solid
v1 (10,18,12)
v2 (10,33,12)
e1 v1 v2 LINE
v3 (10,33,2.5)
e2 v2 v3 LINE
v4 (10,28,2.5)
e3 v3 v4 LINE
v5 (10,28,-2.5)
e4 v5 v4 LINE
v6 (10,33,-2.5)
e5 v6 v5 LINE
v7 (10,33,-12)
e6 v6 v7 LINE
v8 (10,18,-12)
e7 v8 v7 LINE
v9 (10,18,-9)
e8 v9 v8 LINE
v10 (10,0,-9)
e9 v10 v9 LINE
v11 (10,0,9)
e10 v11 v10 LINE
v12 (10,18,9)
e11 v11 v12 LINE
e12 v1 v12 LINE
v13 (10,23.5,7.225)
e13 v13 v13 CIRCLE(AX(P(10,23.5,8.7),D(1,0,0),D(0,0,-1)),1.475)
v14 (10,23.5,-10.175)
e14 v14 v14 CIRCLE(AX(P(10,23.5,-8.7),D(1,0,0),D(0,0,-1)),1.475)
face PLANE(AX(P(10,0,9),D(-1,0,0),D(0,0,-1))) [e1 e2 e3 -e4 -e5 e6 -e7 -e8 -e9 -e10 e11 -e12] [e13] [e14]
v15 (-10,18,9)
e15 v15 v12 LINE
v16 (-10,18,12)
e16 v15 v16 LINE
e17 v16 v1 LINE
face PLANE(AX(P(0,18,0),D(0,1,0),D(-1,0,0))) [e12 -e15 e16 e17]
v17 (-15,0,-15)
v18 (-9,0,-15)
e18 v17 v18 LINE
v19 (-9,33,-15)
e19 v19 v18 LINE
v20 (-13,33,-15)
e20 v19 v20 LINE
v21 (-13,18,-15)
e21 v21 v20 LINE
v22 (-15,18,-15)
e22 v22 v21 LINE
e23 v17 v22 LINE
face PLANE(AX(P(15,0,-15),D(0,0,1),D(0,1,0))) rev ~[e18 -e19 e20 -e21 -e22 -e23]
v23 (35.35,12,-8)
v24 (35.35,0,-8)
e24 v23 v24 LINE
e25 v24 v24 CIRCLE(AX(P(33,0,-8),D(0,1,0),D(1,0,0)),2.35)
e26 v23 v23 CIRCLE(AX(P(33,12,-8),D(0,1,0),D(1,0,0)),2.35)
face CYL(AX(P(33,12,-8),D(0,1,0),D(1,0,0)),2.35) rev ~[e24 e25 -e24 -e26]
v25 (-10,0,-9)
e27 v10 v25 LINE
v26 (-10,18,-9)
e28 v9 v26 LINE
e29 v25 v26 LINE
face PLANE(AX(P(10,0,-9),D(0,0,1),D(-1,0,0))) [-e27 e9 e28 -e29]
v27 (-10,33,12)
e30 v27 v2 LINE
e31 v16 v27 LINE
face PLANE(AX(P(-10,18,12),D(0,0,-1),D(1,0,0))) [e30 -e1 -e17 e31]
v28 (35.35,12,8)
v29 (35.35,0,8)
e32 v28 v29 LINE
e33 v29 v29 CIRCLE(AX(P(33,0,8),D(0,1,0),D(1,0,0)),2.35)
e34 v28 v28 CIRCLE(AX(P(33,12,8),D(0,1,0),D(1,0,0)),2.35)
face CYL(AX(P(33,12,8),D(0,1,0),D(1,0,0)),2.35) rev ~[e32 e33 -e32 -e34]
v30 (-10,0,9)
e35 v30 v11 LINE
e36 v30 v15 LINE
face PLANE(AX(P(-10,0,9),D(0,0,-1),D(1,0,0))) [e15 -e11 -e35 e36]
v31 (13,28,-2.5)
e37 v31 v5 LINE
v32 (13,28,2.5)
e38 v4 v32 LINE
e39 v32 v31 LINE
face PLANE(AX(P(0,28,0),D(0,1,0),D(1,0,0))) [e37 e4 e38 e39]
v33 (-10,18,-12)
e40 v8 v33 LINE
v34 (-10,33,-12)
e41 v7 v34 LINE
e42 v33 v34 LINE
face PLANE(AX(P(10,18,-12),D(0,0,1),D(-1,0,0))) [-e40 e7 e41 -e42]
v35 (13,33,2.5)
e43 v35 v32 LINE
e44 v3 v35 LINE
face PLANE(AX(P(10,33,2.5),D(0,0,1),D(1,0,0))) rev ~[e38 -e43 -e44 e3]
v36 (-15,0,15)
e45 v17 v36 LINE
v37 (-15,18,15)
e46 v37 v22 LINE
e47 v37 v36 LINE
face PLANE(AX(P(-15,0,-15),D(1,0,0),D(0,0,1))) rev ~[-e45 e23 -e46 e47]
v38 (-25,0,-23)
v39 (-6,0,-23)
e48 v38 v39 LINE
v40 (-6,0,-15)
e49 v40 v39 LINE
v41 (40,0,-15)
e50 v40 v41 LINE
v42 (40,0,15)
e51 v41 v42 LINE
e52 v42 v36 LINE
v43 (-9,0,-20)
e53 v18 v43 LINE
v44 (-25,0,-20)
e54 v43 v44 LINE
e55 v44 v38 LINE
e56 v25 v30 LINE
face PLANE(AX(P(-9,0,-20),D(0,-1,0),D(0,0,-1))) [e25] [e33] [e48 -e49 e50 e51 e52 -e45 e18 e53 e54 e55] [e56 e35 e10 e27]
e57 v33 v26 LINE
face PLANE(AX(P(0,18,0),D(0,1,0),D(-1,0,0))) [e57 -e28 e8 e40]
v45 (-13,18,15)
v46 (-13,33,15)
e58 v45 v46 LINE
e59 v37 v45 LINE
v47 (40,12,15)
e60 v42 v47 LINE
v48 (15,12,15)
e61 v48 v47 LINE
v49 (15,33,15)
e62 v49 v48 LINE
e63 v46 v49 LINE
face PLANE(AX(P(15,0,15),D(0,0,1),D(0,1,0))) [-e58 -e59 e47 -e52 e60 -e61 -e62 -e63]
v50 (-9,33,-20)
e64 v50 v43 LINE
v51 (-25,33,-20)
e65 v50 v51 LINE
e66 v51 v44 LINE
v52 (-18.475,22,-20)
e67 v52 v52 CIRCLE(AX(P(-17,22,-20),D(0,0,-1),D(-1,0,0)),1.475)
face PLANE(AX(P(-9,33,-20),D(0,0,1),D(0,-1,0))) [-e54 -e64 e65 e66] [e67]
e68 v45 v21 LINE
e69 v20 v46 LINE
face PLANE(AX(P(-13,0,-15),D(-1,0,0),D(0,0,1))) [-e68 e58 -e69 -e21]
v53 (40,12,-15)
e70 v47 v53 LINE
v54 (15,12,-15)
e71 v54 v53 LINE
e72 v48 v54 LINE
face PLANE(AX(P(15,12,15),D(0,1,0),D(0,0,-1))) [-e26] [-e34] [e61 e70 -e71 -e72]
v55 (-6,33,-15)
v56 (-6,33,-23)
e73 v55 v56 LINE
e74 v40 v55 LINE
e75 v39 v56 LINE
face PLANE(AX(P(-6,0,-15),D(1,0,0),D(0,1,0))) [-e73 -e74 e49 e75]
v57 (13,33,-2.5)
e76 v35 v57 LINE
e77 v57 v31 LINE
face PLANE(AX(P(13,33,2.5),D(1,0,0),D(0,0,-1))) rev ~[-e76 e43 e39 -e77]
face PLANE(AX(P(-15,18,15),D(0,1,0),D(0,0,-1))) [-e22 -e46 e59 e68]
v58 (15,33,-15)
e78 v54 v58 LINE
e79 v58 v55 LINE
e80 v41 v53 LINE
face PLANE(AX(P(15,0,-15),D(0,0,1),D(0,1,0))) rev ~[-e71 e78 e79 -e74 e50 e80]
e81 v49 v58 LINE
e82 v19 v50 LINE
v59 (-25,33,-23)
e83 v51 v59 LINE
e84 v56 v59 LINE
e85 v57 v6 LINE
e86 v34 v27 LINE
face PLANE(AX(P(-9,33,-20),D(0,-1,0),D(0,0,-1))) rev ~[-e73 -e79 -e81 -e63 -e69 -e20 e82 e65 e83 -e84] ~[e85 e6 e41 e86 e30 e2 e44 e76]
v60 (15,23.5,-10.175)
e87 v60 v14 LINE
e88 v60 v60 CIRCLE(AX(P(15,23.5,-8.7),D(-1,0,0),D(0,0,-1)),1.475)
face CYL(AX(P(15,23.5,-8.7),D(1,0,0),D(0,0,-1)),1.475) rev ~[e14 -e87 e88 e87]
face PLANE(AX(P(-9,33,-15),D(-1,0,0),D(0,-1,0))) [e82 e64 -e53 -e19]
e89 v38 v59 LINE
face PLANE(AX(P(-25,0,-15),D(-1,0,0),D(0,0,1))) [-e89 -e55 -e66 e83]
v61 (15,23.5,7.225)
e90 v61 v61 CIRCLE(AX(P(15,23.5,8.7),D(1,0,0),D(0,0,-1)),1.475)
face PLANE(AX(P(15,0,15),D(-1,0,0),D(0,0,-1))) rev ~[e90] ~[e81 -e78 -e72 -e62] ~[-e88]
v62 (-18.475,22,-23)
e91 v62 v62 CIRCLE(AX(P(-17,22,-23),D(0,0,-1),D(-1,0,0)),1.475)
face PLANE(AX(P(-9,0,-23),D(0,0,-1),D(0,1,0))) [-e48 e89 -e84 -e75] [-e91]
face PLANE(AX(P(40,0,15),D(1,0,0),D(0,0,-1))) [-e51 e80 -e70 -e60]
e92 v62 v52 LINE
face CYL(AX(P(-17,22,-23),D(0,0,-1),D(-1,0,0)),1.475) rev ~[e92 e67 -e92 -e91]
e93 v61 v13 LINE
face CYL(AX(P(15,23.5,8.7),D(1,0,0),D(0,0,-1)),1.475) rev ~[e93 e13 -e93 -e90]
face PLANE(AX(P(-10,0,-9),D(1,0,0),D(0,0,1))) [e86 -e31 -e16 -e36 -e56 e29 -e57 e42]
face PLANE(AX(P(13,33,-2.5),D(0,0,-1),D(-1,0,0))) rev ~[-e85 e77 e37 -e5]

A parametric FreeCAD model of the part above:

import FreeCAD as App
import Part
import Sketcher
from FreeCAD import Vector

doc = App.newDocument("Part")
body = doc.addObject("PartDesign::Body", "Body")

# Sketch on XZ plane
sketch1 = doc.addObject("Sketcher::SketchObject", "Sketch")
body.addObject(sketch1)
sketch1.AttachmentSupport = (doc.XZ_Plane, [""])
sketch1.MapMode = "FlatFace"
sketch1.addGeometry([
    Part.LineSegment(Vector(15, 15, 0), Vector(15, -15, 0)),  # 0
    Part.LineSegment(Vector(15, -15, 0), Vector(-15, -15, 0)),  # 1
    Part.LineSegment(Vector(-15, -15, 0), Vector(-15, 15, 0)),  # 2
    Part.LineSegment(Vector(-15, 15, 0), Vector(15, 15, 0)),  # 3
    Part.LineSegment(Vector(-10, -9, 0), Vector(10, -9, 0)),  # 4
    Part.LineSegment(Vector(10, -9, 0), Vector(10, 9, 0)),  # 5
    Part.LineSegment(Vector(10, 9, 0), Vector(-10, 9, 0)),  # 6
    Part.LineSegment(Vector(-10, 9, 0), Vector(-10, -9, 0)),  # 7
], False)
sketch1.addConstraint([
    Sketcher.Constraint("Coincident", 0, 2, 1, 1),
    Sketcher.Constraint("Coincident", 1, 2, 2, 1),
    Sketcher.Constraint("Coincident", 2, 2, 3, 1),
    Sketcher.Constraint("Coincident", 3, 2, 0, 1),
    Sketcher.Constraint("Coincident", 4, 2, 5, 1),
    Sketcher.Constraint("Coincident", 5, 2, 6, 1),
    Sketcher.Constraint("Coincident", 6, 2, 7, 1),
    Sketcher.Constraint("Coincident", 7, 2, 4, 1),
    Sketcher.Constraint("Vertical", 0),
    Sketcher.Constraint("Horizontal", 1),
    Sketcher.Constraint("Vertical", 2),
    Sketcher.Constraint("Horizontal", 3),
    Sketcher.Constraint("Horizontal", 4),
    Sketcher.Constraint("Vertical", 5),
    Sketcher.Constraint("Horizontal", 6),
    Sketcher.Constraint("Vertical", 7),
    Sketcher.Constraint("Symmetric", 0, 2, 2, 2, -1, 1),
    Sketcher.Constraint("Symmetric", 4, 2, 6, 2, -1, 1),
    Sketcher.Constraint("Equal", 3, 0),
    Sketcher.Constraint("DistanceX", 1, 2, 1, 1, 30.0),
    Sketcher.Constraint("DistanceX", 4, 1, 4, 2, 20.0),
    Sketcher.Constraint("DistanceY", 5, 1, 5, 2, 18.0),
])
pad1 = doc.addObject("PartDesign::Pad", "Pad")
body.addObject(pad1)
pad1.Profile = sketch1
pad1.Length = 18
pad1.Reversed = True

# Sketch on XZ plane
sketch2 = doc.addObject("Sketcher::SketchObject", "Sketch001")
body.addObject(sketch2)
sketch2.AttachmentSupport = (doc.XZ_Plane, [""])
sketch2.MapMode = "FlatFace"
sketch2.AttachmentOffset = App.Placement(Vector(0, 0, -18), App.Rotation())
sketch2.addGeometry([
    Part.LineSegment(Vector(15, -15, 0), Vector(-15, -15, 0)),  # 0
    Part.LineSegment(Vector(-15, -15, 0), Vector(-15, 15, 0)),  # 1
    Part.LineSegment(Vector(-15, 15, 0), Vector(15, 15, 0)),  # 2
    Part.LineSegment(Vector(15, 15, 0), Vector(15, -15, 0)),  # 3
    Part.LineSegment(Vector(-10, -12, 0), Vector(10, -12, 0)),  # 4
    Part.LineSegment(Vector(10, -12, 0), Vector(10, 12, 0)),  # 5
    Part.LineSegment(Vector(10, 12, 0), Vector(-10, 12, 0)),  # 6
    Part.LineSegment(Vector(-10, 12, 0), Vector(-10, -12, 0)),  # 7
], False)
sketch2.addConstraint([
    Sketcher.Constraint("Coincident", 0, 2, 1, 1),
    Sketcher.Constraint("Coincident", 1, 2, 2, 1),
    Sketcher.Constraint("Coincident", 2, 2, 3, 1),
    Sketcher.Constraint("Coincident", 3, 2, 0, 1),
    Sketcher.Constraint("Coincident", 4, 2, 5, 1),
    Sketcher.Constraint("Coincident", 5, 2, 6, 1),
    Sketcher.Constraint("Coincident", 6, 2, 7, 1),
    Sketcher.Constraint("Coincident", 7, 2, 4, 1),
    Sketcher.Constraint("Horizontal", 0),
    Sketcher.Constraint("Vertical", 1),
    Sketcher.Constraint("Horizontal", 2),
    Sketcher.Constraint("Vertical", 3),
    Sketcher.Constraint("Horizontal", 4),
    Sketcher.Constraint("Vertical", 5),
    Sketcher.Constraint("Horizontal", 6),
    Sketcher.Constraint("Vertical", 7),
    Sketcher.Constraint("Symmetric", 0, 2, 2, 2, -1, 1),
    Sketcher.Constraint("Symmetric", 4, 2, 6, 2, -1, 1),
    Sketcher.Constraint("Equal", 2, 1),
    Sketcher.Constraint("DistanceX", 4, 1, 4, 2, 20.0),
    Sketcher.Constraint("DistanceY", 5, 1, 5, 2, 24.0),
    Sketcher.Constraint("DistanceX", 0, 2, 0, 1, 30.0),
])
pad2 = doc.addObject("PartDesign::Pad", "Pad001")
body.addObject(pad2)
pad2.Profile = sketch2
pad2.Length = 15
pad2.Reversed = True

# Sketch on YZ plane
sketch3 = doc.addObject("Sketcher::SketchObject", "Sketch002")
body.addObject(sketch3)
sketch3.AttachmentSupport = (doc.YZ_Plane, [""])
sketch3.MapMode = "FlatFace"
sketch3.AttachmentOffset = App.Placement(Vector(0, 0, 15), App.Rotation())
sketch3.addGeometry([
    Part.LineSegment(Vector(0, 15, 0), Vector(0, -15, 0)),
    Part.LineSegment(Vector(0, -15, 0), Vector(12, -15, 0)),
    Part.LineSegment(Vector(12, -15, 0), Vector(12, 15, 0)),
    Part.LineSegment(Vector(12, 15, 0), Vector(0, 15, 0)),
], False)
sketch3.addConstraint([
    Sketcher.Constraint("Coincident", 0, 2, 1, 1),
    Sketcher.Constraint("Coincident", 1, 2, 2, 1),
    Sketcher.Constraint("Coincident", 2, 2, 3, 1),
    Sketcher.Constraint("Coincident", 3, 2, 0, 1),
    Sketcher.Constraint("Vertical", 0),
    Sketcher.Constraint("Horizontal", 1),
    Sketcher.Constraint("Vertical", 2),
    Sketcher.Constraint("Horizontal", 3),
    Sketcher.Constraint("Symmetric", 0, 2, 3, 2, -1, 1),
    Sketcher.Constraint("DistanceX", 1, 1, 1, 2, 12.0),
    Sketcher.Constraint("DistanceY", 0, 2, 0, 1, 30.0),
])
pad3 = doc.addObject("PartDesign::Pad", "Pad002")
body.addObject(pad3)
pad3.Profile = sketch3
pad3.Length = 25

# Sketch on XZ plane
sketch4 = doc.addObject("Sketcher::SketchObject", "Sketch003")
body.addObject(sketch4)
sketch4.AttachmentSupport = (doc.XZ_Plane, [""])
sketch4.MapMode = "FlatFace"
sketch4.AttachmentOffset = App.Placement(Vector(0, 0, -12), App.Rotation())
sketch4.addGeometry([
    Part.Circle(Vector(33, 8, 0), Vector(0, 0, 1), 2.35),
    Part.Circle(Vector(33, -8, 0), Vector(0, 0, 1), 2.35),
], False)
sketch4.addConstraint([
    Sketcher.Constraint("Equal", 0, 1),
    Sketcher.Constraint("Symmetric", 0, 3, 1, 3, -1),
    Sketcher.Constraint("Diameter", 0, 4.7),
    Sketcher.Constraint("DistanceX", -1, 1, 0, 3, 33.0),
    Sketcher.Constraint("DistanceY", -1, 1, 0, 3, 8.0),
])
pocket1 = doc.addObject("PartDesign::Pocket", "Pocket")
body.addObject(pocket1)
pocket1.Profile = sketch4
pocket1.Type = "ThroughAll"
pocket1.Reversed = True

# Sketch on XZ plane
sketch5 = doc.addObject("Sketcher::SketchObject", "Sketch004")
body.addObject(sketch5)
sketch5.AttachmentSupport = (doc.XZ_Plane, [""])
sketch5.MapMode = "FlatFace"
sketch5.AttachmentOffset = App.Placement(Vector(0, 0, -33), App.Rotation())
sketch5.addGeometry([
    Part.LineSegment(Vector(13, -2.5, 0), Vector(10, -2.5, 0)),
    Part.LineSegment(Vector(10, -2.5, 0), Vector(10, 2.5, 0)),
    Part.LineSegment(Vector(10, 2.5, 0), Vector(13, 2.5, 0)),
    Part.LineSegment(Vector(13, 2.5, 0), Vector(13, -2.5, 0)),
], False)
sketch5.addConstraint([
    Sketcher.Constraint("Coincident", 0, 2, 1, 1),
    Sketcher.Constraint("Coincident", 1, 2, 2, 1),
    Sketcher.Constraint("Coincident", 2, 2, 3, 1),
    Sketcher.Constraint("Coincident", 3, 2, 0, 1),
    Sketcher.Constraint("Horizontal", 0),
    Sketcher.Constraint("Vertical", 1),
    Sketcher.Constraint("Horizontal", 2),
    Sketcher.Constraint("Vertical", 3),
    Sketcher.Constraint("DistanceX", 0, 2, 0, 1, 3.0),
    Sketcher.Constraint("DistanceY", 1, 1, 1, 2, 5.0),
    Sketcher.Constraint("DistanceX", -1, 1, 0, 2, 10.0),
    Sketcher.Constraint("DistanceY", 0, 2, -1, 1, 2.5),
])
pocket2 = doc.addObject("PartDesign::Pocket", "Pocket001")
body.addObject(pocket2)
pocket2.Profile = sketch5
pocket2.Length = 5
pocket2.Reversed = True

# Sketch on YZ plane
sketch6 = doc.addObject("Sketcher::SketchObject", "Sketch005")
body.addObject(sketch6)
sketch6.AttachmentSupport = (doc.YZ_Plane, [""])
sketch6.MapMode = "FlatFace"
sketch6.AttachmentOffset = App.Placement(Vector(0, 0, 15), App.Rotation())
sketch6.addGeometry([
    Part.Circle(Vector(23.5, 8.7, 0), Vector(0, 0, 1), 1.475),
    Part.Circle(Vector(23.5, -8.7, 0), Vector(0, 0, 1), 1.475),
], False)
sketch6.addConstraint([
    Sketcher.Constraint("Equal", 0, 1),
    Sketcher.Constraint("Symmetric", 0, 3, 1, 3, -1),
    Sketcher.Constraint("Diameter", 0, 2.95),
    Sketcher.Constraint("DistanceY", 1, 3, 0, 3, 17.4),
    Sketcher.Constraint("DistanceX", -1, 1, 0, 3, 23.5),
])
pocket3 = doc.addObject("PartDesign::Pocket", "Pocket002")
body.addObject(pocket3)
pocket3.Profile = sketch6
pocket3.Length = 5

# Sketch on YZ plane
sketch7 = doc.addObject("Sketcher::SketchObject", "Sketch006")
body.addObject(sketch7)
sketch7.AttachmentSupport = (doc.YZ_Plane, [""])
sketch7.MapMode = "FlatFace"
sketch7.AttachmentOffset = App.Placement(Vector(0, 0, -15), App.Rotation())
sketch7.addGeometry([
    Part.LineSegment(Vector(33, 15, 0), Vector(33, -15, 0)),
    Part.LineSegment(Vector(33, -15, 0), Vector(18, -15, 0)),
    Part.LineSegment(Vector(18, -15, 0), Vector(18, 15, 0)),
    Part.LineSegment(Vector(18, 15, 0), Vector(33, 15, 0)),
], False)
sketch7.addConstraint([
    Sketcher.Constraint("Coincident", 0, 2, 1, 1),
    Sketcher.Constraint("Coincident", 1, 2, 2, 1),
    Sketcher.Constraint("Coincident", 2, 2, 3, 1),
    Sketcher.Constraint("Coincident", 3, 2, 0, 1),
    Sketcher.Constraint("Vertical", 0),
    Sketcher.Constraint("Horizontal", 1),
    Sketcher.Constraint("Vertical", 2),
    Sketcher.Constraint("Horizontal", 3),
    Sketcher.Constraint("DistanceX", 1, 2, 1, 1, 15.0),
    Sketcher.Constraint("DistanceY", 0, 2, -1, 1, 15.0),
    Sketcher.Constraint("DistanceY", -1, 1, 2, 2, 15.0),
    Sketcher.Constraint("DistanceX", -1, 1, 0, 2, 33.0),
])
pocket4 = doc.addObject("PartDesign::Pocket", "Pocket003")
body.addObject(pocket4)
pocket4.Profile = sketch7
pocket4.Length = 2
pocket4.Reversed = True

# Sketch on XY plane
sketch8 = doc.addObject("Sketcher::SketchObject", "Sketch007")
body.addObject(sketch8)
sketch8.AttachmentSupport = (doc.XY_Plane, [""])
sketch8.MapMode = "FlatFace"
sketch8.AttachmentOffset = App.Placement(Vector(0, 0, -15), App.Rotation())
sketch8.addGeometry([
    Part.LineSegment(Vector(-9, 0, 0), Vector(-9, 33, 0)),
    Part.LineSegment(Vector(-9, 33, 0), Vector(-6, 33, 0)),
    Part.LineSegment(Vector(-6, 33, 0), Vector(-6, 0, 0)),
    Part.LineSegment(Vector(-6, 0, 0), Vector(-9, 0, 0)),
], False)
sketch8.addConstraint([
    Sketcher.Constraint("Coincident", 0, 2, 1, 1),
    Sketcher.Constraint("Coincident", 1, 2, 2, 1),
    Sketcher.Constraint("Coincident", 2, 2, 3, 1),
    Sketcher.Constraint("Coincident", 3, 2, 0, 1),
    Sketcher.Constraint("Vertical", 0),
    Sketcher.Constraint("Horizontal", 1),
    Sketcher.Constraint("Vertical", 2),
    Sketcher.Constraint("Horizontal", 3),
    Sketcher.Constraint("PointOnObject", 2, 2, -1),
    Sketcher.Constraint("DistanceX", 1, 1, 1, 2, 3.0),
    Sketcher.Constraint("DistanceY", 0, 1, 0, 2, 33.0),
    Sketcher.Constraint("DistanceX", 0, 2, -1, 1, 9.0),
])
pad4 = doc.addObject("PartDesign::Pad", "Pad003")
body.addObject(pad4)
pad4.Profile = sketch8
pad4.Length = 8
pad4.Reversed = True

# Sketch on YZ plane
sketch9 = doc.addObject("Sketcher::SketchObject", "Sketch008")
body.addObject(sketch9)
sketch9.AttachmentSupport = (doc.YZ_Plane, [""])
sketch9.MapMode = "FlatFace"
sketch9.AttachmentOffset = App.Placement(Vector(0, 0, -9), App.Rotation())
sketch9.addGeometry([
    Part.LineSegment(Vector(0, -20, 0), Vector(33, -20, 0)),
    Part.LineSegment(Vector(33, -20, 0), Vector(33, -23, 0)),
    Part.LineSegment(Vector(33, -23, 0), Vector(0, -23, 0)),
    Part.LineSegment(Vector(0, -23, 0), Vector(0, -20, 0)),
], False)
sketch9.addConstraint([
    Sketcher.Constraint("Coincident", 0, 2, 1, 1),
    Sketcher.Constraint("Coincident", 1, 2, 2, 1),
    Sketcher.Constraint("Coincident", 2, 2, 3, 1),
    Sketcher.Constraint("Coincident", 3, 2, 0, 1),
    Sketcher.Constraint("Horizontal", 0),
    Sketcher.Constraint("Vertical", 1),
    Sketcher.Constraint("Horizontal", 2),
    Sketcher.Constraint("Vertical", 3),
    Sketcher.Constraint("PointOnObject", 2, 2, -2),
    Sketcher.Constraint("DistanceY", 1, 2, 1, 1, 3.0),
    Sketcher.Constraint("DistanceX", 0, 1, 0, 2, 33.0),
    Sketcher.Constraint("DistanceY", 0, 2, -1, 1, 20.0),
])
pad5 = doc.addObject("PartDesign::Pad", "Pad004")
body.addObject(pad5)
pad5.Profile = sketch9
pad5.Length = 16
pad5.Reversed = True

# Sketch on XY plane
sketch10 = doc.addObject("Sketcher::SketchObject", "Sketch009")
body.addObject(sketch10)
sketch10.AttachmentSupport = (doc.XY_Plane, [""])
sketch10.MapMode = "FlatFace"
sketch10.AttachmentOffset = App.Placement(Vector(0, 0, -23), App.Rotation())
sketch10.addGeometry(Part.Circle(Vector(-17, 22, 0), Vector(0, 0, 1), 1.475), False)
sketch10.addConstraint([
    Sketcher.Constraint("Diameter", 0, 2.95),
    Sketcher.Constraint("DistanceX", 0, 3, -1, 1, 17.0),
    Sketcher.Constraint("DistanceY", -1, 1, 0, 3, 22.0),
])
pocket5 = doc.addObject("PartDesign::Pocket", "Pocket004")
body.addObject(pocket5)
pocket5.Profile = sketch10
pocket5.Length = 3
pocket5.Reversed = True

doc.recompute()
